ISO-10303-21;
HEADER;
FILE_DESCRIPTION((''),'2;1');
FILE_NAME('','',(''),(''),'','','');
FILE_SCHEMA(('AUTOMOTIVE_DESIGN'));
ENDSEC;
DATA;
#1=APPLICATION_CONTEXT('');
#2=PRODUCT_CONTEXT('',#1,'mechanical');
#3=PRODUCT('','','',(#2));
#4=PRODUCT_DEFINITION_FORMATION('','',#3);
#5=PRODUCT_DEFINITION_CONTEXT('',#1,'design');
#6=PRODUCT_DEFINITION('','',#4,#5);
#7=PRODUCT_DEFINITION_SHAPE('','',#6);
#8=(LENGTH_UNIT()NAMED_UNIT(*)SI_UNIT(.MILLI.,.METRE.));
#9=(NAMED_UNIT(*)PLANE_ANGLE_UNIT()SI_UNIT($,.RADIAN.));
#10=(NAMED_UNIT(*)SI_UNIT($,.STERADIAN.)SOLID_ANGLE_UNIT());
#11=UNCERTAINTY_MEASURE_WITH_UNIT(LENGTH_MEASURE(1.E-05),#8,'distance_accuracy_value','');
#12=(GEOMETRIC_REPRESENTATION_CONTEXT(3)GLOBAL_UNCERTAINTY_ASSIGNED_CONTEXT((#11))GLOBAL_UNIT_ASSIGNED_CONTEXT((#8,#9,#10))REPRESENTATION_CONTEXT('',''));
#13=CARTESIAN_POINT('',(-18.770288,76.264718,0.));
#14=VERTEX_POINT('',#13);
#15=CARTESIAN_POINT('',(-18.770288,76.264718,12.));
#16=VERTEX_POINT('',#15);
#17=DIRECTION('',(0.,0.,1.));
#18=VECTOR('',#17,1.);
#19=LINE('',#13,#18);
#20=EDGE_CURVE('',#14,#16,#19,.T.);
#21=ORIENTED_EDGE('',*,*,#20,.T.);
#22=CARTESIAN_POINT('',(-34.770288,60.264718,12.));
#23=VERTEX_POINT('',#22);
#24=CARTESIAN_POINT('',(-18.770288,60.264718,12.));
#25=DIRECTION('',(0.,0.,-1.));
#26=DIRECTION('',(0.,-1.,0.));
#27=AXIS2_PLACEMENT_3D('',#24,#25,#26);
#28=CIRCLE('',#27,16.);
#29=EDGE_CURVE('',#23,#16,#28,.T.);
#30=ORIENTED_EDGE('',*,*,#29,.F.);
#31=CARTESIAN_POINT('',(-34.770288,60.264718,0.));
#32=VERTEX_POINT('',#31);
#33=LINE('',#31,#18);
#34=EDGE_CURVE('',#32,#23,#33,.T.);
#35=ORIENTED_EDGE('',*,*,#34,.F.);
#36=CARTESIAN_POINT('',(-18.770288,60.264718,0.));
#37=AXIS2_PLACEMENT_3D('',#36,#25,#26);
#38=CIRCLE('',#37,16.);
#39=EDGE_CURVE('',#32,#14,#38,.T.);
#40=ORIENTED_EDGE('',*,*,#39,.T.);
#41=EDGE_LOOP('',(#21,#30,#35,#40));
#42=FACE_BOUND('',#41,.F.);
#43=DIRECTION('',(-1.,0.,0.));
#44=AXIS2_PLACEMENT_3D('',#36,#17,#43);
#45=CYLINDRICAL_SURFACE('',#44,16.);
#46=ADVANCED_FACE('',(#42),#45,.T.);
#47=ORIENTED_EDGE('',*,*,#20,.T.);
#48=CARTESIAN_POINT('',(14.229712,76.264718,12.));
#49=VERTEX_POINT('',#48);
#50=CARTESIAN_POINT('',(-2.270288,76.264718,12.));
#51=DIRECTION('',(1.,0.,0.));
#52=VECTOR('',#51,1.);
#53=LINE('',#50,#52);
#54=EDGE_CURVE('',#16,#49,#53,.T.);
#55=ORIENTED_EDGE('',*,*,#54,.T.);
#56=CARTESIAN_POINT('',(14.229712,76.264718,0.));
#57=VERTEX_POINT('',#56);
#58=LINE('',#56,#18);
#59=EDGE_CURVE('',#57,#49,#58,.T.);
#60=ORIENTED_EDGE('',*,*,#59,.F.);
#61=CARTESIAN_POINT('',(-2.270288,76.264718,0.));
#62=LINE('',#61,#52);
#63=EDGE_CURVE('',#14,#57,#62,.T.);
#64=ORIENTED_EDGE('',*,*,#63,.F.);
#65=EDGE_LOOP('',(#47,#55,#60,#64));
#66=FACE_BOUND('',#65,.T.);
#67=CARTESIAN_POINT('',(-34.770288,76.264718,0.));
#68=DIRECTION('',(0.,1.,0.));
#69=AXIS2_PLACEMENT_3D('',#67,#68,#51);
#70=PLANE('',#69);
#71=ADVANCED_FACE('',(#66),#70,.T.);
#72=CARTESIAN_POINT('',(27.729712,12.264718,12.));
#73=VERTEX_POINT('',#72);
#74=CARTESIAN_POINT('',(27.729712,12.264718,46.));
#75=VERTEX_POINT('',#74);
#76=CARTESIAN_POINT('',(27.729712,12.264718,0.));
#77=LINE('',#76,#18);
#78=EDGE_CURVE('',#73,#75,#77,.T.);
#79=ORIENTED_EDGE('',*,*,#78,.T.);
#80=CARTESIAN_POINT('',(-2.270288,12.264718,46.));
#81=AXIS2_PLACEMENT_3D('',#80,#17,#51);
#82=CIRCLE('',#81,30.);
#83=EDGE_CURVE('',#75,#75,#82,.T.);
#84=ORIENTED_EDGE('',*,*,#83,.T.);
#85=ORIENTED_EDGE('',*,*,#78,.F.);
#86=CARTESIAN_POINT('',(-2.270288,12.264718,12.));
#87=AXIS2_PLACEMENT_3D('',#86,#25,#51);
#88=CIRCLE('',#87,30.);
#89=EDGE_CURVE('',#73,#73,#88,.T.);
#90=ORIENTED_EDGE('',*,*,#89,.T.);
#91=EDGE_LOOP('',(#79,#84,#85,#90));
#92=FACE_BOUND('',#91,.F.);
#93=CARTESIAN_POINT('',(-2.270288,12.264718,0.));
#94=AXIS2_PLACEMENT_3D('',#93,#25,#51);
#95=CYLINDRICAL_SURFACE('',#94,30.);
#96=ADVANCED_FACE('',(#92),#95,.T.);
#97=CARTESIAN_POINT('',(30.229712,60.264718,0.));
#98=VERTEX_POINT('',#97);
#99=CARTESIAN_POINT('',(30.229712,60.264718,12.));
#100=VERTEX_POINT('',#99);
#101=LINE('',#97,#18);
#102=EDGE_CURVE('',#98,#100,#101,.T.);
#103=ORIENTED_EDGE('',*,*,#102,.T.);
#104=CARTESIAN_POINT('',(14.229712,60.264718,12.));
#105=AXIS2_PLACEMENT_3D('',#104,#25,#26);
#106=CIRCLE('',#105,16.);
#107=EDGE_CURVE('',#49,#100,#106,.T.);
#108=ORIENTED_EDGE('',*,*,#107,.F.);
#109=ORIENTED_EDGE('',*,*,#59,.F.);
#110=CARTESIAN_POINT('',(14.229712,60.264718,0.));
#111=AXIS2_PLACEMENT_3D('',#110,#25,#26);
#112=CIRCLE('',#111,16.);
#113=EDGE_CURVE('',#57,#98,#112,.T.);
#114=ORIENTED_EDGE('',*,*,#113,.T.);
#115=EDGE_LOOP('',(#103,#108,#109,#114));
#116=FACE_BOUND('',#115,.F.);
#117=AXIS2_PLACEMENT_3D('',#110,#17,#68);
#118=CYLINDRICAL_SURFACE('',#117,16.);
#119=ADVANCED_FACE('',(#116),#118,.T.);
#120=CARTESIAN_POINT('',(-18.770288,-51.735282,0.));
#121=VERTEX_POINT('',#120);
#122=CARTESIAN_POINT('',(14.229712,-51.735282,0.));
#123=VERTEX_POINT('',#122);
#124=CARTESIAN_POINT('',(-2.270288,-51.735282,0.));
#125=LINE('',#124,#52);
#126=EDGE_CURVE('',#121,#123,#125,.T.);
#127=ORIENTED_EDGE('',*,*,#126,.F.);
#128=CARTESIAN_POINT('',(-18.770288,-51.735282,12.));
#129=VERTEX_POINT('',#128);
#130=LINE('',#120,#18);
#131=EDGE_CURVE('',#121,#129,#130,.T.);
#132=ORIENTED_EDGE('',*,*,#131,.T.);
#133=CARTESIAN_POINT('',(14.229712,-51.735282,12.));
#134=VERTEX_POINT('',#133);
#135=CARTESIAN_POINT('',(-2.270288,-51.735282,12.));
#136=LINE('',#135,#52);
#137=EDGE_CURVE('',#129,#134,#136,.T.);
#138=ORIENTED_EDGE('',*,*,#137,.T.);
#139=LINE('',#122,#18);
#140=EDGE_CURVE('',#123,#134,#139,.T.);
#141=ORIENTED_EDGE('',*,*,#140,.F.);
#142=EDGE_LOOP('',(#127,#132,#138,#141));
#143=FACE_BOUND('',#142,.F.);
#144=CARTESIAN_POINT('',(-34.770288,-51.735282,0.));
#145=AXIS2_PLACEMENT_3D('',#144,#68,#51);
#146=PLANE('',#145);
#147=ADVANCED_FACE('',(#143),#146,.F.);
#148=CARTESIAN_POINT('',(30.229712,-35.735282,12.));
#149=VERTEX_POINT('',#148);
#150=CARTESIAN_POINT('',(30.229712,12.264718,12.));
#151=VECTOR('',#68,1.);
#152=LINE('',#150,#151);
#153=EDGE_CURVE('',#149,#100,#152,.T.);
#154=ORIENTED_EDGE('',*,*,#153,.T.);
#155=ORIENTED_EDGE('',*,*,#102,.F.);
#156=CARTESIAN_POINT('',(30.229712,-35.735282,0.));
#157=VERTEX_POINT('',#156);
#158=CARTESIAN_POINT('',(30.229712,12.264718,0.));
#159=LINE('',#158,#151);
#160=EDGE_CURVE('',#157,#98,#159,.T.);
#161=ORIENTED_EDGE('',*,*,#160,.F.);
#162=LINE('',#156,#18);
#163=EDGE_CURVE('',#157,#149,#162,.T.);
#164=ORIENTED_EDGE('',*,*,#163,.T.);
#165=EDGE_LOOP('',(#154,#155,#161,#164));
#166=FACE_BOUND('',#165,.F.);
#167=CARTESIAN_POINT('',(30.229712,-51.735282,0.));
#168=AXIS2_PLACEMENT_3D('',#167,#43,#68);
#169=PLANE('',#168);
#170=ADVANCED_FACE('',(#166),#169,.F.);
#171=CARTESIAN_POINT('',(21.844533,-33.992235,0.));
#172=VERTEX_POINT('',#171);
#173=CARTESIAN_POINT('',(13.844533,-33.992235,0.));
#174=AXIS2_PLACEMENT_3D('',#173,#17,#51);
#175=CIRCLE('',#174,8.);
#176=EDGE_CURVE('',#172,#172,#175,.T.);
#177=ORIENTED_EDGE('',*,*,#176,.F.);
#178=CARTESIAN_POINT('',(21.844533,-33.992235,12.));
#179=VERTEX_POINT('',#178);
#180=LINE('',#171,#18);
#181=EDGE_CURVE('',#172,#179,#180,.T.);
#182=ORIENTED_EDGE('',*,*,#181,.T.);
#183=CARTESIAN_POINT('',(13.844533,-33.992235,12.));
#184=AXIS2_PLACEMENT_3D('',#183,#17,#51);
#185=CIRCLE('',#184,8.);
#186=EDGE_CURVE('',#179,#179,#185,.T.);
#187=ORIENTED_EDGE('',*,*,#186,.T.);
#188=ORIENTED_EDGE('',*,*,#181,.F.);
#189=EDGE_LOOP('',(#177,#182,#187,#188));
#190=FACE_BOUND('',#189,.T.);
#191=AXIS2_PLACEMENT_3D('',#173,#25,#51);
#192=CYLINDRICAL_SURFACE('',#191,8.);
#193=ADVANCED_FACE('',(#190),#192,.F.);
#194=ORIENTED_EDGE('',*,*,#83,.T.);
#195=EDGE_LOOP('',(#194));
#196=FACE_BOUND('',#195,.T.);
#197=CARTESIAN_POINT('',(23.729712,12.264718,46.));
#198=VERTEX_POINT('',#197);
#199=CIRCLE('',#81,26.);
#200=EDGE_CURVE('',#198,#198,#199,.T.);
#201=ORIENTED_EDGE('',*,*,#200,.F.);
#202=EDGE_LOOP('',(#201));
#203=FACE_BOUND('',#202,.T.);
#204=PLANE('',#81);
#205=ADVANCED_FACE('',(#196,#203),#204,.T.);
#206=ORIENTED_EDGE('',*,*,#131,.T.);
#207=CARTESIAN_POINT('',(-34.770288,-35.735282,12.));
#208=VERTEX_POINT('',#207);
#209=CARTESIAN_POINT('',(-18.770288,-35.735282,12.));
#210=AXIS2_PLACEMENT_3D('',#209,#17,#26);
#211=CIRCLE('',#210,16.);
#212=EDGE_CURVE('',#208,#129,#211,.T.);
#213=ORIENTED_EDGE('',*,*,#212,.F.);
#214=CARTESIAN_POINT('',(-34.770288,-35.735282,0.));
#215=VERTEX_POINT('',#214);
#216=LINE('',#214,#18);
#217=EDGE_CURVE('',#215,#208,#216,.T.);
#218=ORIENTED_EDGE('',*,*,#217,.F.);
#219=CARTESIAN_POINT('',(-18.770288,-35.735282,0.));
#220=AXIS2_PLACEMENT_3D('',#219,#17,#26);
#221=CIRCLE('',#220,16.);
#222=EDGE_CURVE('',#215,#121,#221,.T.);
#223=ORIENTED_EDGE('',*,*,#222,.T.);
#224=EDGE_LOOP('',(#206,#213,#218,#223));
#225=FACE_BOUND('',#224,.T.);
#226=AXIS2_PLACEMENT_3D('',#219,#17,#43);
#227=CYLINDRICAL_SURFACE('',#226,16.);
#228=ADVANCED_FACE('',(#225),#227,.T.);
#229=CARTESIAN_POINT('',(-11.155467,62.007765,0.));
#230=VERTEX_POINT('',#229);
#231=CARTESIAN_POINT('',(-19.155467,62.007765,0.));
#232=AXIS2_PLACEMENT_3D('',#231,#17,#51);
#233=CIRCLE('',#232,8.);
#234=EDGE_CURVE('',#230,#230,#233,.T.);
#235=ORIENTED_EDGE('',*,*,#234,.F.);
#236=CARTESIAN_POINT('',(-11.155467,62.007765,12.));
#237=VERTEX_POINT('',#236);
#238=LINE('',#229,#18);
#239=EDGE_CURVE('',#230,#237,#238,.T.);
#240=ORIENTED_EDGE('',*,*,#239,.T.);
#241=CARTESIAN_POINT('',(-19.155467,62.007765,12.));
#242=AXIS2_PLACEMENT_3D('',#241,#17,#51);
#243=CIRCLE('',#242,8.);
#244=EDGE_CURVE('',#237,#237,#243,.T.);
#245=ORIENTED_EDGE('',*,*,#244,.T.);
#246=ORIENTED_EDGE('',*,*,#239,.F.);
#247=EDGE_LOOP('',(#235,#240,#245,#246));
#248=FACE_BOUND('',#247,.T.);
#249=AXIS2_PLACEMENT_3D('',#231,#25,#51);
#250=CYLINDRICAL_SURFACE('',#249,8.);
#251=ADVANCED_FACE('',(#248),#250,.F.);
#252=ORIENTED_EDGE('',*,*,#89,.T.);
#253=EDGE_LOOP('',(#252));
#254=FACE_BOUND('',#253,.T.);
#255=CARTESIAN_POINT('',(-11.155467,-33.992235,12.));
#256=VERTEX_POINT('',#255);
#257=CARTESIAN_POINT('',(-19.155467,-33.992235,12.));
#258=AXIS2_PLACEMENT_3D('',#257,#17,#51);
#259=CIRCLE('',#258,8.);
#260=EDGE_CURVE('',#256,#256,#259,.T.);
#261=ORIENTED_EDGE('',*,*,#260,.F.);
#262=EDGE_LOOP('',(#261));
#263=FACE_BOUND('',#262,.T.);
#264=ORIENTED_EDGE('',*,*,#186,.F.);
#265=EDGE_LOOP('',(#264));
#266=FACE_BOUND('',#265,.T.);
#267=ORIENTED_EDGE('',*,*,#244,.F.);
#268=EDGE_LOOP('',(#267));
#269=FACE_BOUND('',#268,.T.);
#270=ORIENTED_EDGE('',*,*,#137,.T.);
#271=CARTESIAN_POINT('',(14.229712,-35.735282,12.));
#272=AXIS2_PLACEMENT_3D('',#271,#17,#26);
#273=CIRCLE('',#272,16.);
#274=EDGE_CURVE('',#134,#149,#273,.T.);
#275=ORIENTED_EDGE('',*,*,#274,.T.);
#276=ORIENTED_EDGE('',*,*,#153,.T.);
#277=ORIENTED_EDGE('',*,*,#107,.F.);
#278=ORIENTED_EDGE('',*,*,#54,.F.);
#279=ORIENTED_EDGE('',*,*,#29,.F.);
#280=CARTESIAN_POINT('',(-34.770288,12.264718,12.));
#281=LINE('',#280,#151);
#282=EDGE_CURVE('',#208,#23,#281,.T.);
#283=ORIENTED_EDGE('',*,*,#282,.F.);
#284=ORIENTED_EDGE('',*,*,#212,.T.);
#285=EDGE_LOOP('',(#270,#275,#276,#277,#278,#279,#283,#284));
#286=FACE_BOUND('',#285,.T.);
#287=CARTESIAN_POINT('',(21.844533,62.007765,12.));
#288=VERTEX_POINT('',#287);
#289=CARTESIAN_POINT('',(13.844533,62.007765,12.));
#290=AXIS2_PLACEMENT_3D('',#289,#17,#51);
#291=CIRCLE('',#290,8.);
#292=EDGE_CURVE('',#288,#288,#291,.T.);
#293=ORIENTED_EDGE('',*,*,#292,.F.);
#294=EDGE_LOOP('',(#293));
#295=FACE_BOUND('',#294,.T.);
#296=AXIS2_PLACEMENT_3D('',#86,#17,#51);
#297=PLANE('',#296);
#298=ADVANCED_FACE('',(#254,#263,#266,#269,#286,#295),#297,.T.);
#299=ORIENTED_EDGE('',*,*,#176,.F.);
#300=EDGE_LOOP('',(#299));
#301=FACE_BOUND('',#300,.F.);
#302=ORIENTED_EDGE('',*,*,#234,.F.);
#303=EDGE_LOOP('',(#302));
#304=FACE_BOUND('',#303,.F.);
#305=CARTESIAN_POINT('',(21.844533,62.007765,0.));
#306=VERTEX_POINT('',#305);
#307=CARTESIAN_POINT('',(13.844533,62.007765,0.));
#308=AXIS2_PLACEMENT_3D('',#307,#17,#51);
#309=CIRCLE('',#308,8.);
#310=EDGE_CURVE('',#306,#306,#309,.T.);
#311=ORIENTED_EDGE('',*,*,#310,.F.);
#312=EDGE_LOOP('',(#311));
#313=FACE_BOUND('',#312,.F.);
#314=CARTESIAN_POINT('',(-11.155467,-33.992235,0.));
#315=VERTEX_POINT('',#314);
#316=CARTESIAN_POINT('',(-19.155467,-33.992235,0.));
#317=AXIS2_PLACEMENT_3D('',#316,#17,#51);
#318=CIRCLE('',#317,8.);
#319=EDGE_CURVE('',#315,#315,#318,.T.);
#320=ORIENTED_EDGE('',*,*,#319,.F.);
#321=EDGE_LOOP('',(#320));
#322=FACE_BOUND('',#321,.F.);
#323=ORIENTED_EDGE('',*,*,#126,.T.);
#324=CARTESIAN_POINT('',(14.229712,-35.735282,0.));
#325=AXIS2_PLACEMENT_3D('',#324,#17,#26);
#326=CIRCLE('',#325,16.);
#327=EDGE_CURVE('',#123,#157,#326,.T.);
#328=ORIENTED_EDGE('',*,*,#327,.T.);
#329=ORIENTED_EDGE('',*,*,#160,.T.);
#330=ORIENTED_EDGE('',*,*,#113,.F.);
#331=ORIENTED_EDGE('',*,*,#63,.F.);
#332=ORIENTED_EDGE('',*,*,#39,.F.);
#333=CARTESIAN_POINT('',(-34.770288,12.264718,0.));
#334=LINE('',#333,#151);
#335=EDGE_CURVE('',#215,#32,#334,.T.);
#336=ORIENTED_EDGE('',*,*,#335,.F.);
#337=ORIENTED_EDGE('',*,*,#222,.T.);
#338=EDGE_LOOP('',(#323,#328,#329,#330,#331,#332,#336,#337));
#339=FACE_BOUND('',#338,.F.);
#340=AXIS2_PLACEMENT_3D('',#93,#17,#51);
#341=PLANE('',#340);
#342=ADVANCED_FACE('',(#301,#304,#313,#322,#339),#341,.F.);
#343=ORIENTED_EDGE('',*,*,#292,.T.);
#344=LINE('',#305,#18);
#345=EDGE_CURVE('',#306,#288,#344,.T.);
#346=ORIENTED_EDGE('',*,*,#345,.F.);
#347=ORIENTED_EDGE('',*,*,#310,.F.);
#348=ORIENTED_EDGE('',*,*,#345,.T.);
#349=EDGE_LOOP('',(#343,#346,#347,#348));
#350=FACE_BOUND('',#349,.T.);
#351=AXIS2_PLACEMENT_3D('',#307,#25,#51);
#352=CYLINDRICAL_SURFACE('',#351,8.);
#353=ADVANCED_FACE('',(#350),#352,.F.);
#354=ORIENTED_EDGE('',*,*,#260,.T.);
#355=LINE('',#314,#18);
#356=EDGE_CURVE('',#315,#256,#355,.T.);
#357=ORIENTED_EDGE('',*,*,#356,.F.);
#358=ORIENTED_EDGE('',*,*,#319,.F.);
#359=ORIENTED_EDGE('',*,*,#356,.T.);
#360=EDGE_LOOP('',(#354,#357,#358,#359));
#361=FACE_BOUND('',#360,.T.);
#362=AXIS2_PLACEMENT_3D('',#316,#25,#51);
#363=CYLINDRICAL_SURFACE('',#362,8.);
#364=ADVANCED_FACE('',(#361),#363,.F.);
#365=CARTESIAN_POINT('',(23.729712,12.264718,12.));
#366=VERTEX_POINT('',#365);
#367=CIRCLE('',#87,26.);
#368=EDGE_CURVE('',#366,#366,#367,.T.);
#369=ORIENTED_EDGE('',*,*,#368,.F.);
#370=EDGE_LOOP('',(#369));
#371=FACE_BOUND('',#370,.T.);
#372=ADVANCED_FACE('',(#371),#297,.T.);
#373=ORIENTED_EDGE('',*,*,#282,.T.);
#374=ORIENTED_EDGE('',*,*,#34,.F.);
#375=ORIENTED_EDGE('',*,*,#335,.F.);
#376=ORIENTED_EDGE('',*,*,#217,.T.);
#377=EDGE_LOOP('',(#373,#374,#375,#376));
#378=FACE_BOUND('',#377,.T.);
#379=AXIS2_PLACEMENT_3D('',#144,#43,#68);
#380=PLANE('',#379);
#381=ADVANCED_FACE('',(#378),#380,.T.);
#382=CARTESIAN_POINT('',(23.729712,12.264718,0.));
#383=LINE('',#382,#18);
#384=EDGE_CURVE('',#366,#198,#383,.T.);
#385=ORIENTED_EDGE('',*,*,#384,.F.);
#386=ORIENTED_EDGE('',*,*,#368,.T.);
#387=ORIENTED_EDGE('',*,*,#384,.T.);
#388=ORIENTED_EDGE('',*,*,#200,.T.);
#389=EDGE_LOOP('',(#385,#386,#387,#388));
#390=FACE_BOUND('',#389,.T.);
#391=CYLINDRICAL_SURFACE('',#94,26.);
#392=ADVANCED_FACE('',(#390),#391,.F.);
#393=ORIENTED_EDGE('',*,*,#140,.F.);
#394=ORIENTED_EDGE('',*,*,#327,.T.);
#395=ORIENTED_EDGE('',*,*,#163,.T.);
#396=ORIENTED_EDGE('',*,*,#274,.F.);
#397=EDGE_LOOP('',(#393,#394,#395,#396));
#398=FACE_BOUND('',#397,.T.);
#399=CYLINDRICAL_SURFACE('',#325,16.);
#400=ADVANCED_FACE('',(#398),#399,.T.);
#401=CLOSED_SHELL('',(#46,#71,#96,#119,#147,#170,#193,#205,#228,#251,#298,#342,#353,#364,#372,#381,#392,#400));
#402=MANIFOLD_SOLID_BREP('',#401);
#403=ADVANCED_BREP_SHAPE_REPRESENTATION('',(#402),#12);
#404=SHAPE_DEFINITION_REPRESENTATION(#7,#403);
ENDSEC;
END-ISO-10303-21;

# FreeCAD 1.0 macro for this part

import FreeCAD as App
import Part
import Sketcher

V = App.Vector


def edges_at(feature, points):
    """Names of the edges that pass closest to the given points."""
    edges = feature.Shape.Edges
    near = lambda p: min(range(len(edges)), key=lambda i: edges[i].distToShape(Part.Vertex(*p))[0])
    return sorted({f"Edge{near(p) + 1}" for p in points})

doc = App.newDocument("Part")
body = doc.addObject("PartDesign::Body", "Body")

sketch1 = doc.addObject("Sketcher::SketchObject", "Sketch")
body.addObject(sketch1)
sketch1.AttachmentSupport = (doc.XY_Plane, [""])
sketch1.MapMode = "FlatFace"
sketch1.addGeometry([
    Part.LineSegment(V(-35, 76, 0), V(-35, -52, 0)),
    Part.LineSegment(V(-35, -52, 0), V(30, -52, 0)),
    Part.LineSegment(V(30, -52, 0), V(30, 76, 0)),
    Part.LineSegment(V(30, 76, 0), V(-35, 76, 0)),
    Part.Circle(V(-19, -34, 0), V(0, 0, 1), 8),
    Part.Circle(V(14, -34, 0), V(0, 0, 1), 8),
    Part.Circle(V(-19, 62, 0), V(0, 0, 1), 8),
    Part.Circle(V(14, 62, 0), V(0, 0, 1), 8),
], False)
sketch1.addConstraint([
    Sketcher.Constraint("Coincident", 0, 2, 1, 1),
    Sketcher.Constraint("Coincident", 1, 2, 2, 1),
    Sketcher.Constraint("Coincident", 2, 2, 3, 1),
    Sketcher.Constraint("Coincident", 3, 2, 0, 1),
    Sketcher.Constraint("Vertical", 0),
    Sketcher.Constraint("Horizontal", 1),
    Sketcher.Constraint("Vertical", 2),
    Sketcher.Constraint("Horizontal", 3),
    Sketcher.Constraint("Equal", 4, 5),
    Sketcher.Constraint("Equal", 5, 6),
    Sketcher.Constraint("Equal", 6, 7),
    Sketcher.Constraint("Horizontal", 4, 3, 5, 3),
    Sketcher.Constraint("Horizontal", 6, 3, 7, 3),
    Sketcher.Constraint("Vertical", 4, 3, 6, 3),
    Sketcher.Constraint("Vertical", 5, 3, 7, 3),
    Sketcher.Constraint("Diameter", 4, 16.0),
    Sketcher.Constraint("DistanceX", 1, 1, 1, 2, 65.0),
    Sketcher.Constraint("DistanceY", 0, 2, 0, 1, 128.0),
    Sketcher.Constraint("DistanceX", 4, 3, 5, 3, 33.0),
    Sketcher.Constraint("DistanceY", 4, 3, 6, 3, 96.0),
    Sketcher.Constraint("DistanceY", 0, 2, -1, 1, 51.735282),
    Sketcher.Constraint("DistanceX", -1, 1, 1, 2, 30.229712),
    Sketcher.Constraint("DistanceX", 0, 2, 4, 3, 15.614821),
    Sketcher.Constraint("DistanceY", 4, 3, -1, 1, 33.992235),
])
pad1 = doc.addObject("PartDesign::Pad", "Pad")
body.addObject(pad1)
pad1.Profile = sketch1
pad1.Length = 12
doc.recompute()

fillet = doc.addObject("PartDesign::Fillet", "Fillet")
body.addObject(fillet)
fillet.Base = (pad1, edges_at(pad1, [
    (30.23, -51.735, 6),
    (-34.77, -51.735, 6),
    (-34.77, 76.265, 6),
    (30.23, 76.265, 6),
]))
fillet.Radius = 16

sketch2 = doc.addObject("Sketcher::SketchObject", "Sketch001")
body.addObject(sketch2)
sketch2.AttachmentSupport = (doc.XY_Plane, [""])
sketch2.MapMode = "FlatFace"
sketch2.addGeometry([
    Part.Circle(V(-2, 12, 0), V(0, 0, 1), 30),
    Part.Circle(V(-2, 12, 0), V(0, 0, 1), 26),
], False)
sketch2.addConstraint([
    Sketcher.Constraint("Coincident", 1, 3, 0, 3),
    Sketcher.Constraint("Diameter", 0, 60.0),
    Sketcher.Constraint("Diameter", 1, 52.0),
    Sketcher.Constraint("DistanceX", 0, 3, -1, 1, 2.270288),
    Sketcher.Constraint("DistanceY", -1, 1, 0, 3, 12.264718),
])
pad2 = doc.addObject("PartDesign::Pad", "Pad001")
body.addObject(pad2)
pad2.Profile = sketch2
pad2.Length = 46

doc.recompute()
